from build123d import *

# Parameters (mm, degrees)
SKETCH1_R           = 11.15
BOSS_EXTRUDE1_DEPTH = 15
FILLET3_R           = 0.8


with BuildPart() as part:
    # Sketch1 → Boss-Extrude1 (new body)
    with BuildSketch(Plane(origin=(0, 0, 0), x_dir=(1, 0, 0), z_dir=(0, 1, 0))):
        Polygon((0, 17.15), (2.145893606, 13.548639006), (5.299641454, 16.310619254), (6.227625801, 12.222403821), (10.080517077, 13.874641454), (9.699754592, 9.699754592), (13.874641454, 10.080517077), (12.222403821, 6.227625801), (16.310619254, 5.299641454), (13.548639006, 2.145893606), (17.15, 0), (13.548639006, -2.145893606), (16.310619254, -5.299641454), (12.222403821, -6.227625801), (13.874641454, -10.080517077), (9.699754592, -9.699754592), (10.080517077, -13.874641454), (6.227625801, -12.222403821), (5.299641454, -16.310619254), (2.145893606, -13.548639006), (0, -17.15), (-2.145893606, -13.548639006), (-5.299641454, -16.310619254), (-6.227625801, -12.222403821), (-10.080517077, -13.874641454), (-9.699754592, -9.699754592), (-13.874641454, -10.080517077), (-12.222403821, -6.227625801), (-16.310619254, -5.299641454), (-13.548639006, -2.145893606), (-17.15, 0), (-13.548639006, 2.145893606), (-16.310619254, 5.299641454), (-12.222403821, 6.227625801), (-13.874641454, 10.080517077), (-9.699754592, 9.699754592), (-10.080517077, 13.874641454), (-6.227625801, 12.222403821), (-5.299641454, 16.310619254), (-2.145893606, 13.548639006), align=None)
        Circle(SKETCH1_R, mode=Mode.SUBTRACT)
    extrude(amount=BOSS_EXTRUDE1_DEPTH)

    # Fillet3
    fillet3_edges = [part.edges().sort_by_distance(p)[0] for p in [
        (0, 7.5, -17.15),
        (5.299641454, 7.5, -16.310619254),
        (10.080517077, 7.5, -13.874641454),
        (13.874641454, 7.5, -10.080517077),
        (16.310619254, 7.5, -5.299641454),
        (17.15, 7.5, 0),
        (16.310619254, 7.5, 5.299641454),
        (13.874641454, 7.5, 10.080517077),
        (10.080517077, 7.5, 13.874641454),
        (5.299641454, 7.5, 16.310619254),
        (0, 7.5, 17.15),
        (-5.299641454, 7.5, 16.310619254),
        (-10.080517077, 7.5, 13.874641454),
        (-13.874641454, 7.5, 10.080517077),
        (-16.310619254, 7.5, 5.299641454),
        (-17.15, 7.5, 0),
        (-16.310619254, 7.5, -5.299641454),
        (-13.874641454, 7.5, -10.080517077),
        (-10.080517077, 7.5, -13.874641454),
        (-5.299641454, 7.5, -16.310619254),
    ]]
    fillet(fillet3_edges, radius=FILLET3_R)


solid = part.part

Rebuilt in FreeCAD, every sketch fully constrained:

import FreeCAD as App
import Part
import Sketcher

V = App.Vector


def edges_at(feature, points):
    """Names of the edges that pass closest to the given points."""
    edges = feature.Shape.Edges
    near = lambda p: min(range(len(edges)), key=lambda i: edges[i].distToShape(Part.Vertex(*p))[0])
    return sorted({f"Edge{near(p) + 1}" for p in points})


def add_polygon(sketch, points):
    """Adds a closed chain of lines whose ends are joined by coincident constraints."""
    first, n = sketch.GeometryCount, len(points)
    for a, b in zip(points, points[1:] + points[:1]):
        sketch.addGeometry(Part.LineSegment(App.Vector(*a, 0), App.Vector(*b, 0)), False)
    for i in range(n):
        sketch.addConstraint(Sketcher.Constraint("Coincident", first + i, 2, first + (i + 1) % n, 1))

doc = App.newDocument("Part")
body = doc.addObject("PartDesign::Body", "Body")

sketch1 = doc.addObject("Sketcher::SketchObject", "Sketch")
body.addObject(sketch1)
sketch1.AttachmentSupport = (doc.XZ_Plane, [""])
sketch1.MapMode = "FlatFace"
add_polygon(sketch1, [(2.1, -13.5), (0, -17.1), (-2.1, -13.5), (-5.3, -16.3), (-6.2, -12.2), (-10.1, -13.9), (-9.7, -9.7), (-13.9, -10.1), (-12.2, -6.2), (-16.3, -5.3), (-13.5, -2.1), (-17.1, 0), (-13.5, 2.1), (-16.3, 5.3), (-12.2, 6.2), (-13.9, 10.1), (-9.7, 9.7), (-10.1, 13.9), (-6.2, 12.2), (-5.3, 16.3), (-2.1, 13.5), (0, 17.1), (2.1, 13.5), (5.3, 16.3), (6.2, 12.2), (10.1, 13.9), (9.7, 9.7), (13.9, 10.1), (12.2, 6.2), (16.3, 5.3), (13.5, 2.1), (17.1, 0), (13.5, -2.1), (16.3, -5.3), (12.2, -6.2), (13.9, -10.1), (9.7, -9.7), (10.1, -13.9), (6.2, -12.2), (5.3, -16.3)])
sketch1.addGeometry(Part.Circle(V(0, 0, 0), V(0, 0, 1), 11.2), False)
sketch1.addConstraint([
    Sketcher.Constraint("Coincident", 40, 3, -1, 1),
    Sketcher.Constraint("Symmetric", 0, 2, 20, 2, -1, 1),
    Sketcher.Constraint("Symmetric", 1, 2, 21, 2, -1, 1),
    Sketcher.Constraint("Symmetric", 2, 2, 22, 2, -1, 1),
    Sketcher.Constraint("Symmetric", 3, 2, 23, 2, -1, 1),
    Sketcher.Constraint("Symmetric", 4, 2, 24, 2, -1, 1),
    Sketcher.Constraint("Symmetric", 5, 2, 25, 2, -1, 1),
    Sketcher.Constraint("Symmetric", 6, 2, 26, 2, -1, 1),
    Sketcher.Constraint("Symmetric", 7, 2, 27, 2, -1, 1),
    Sketcher.Constraint("Symmetric", 8, 2, 28, 2, -1, 1),
    Sketcher.Constraint("Symmetric", 9, 2, 29, 2, -1, 1),
    Sketcher.Constraint("Symmetric", 10, 2, 30, 2, -1, 1),
    Sketcher.Constraint("Symmetric", 11, 2, 31, 2, -1, 1),
    Sketcher.Constraint("Symmetric", 12, 2, 32, 2, -1, 1),
    Sketcher.Constraint("Symmetric", 13, 2, 33, 2, -1, 1),
    Sketcher.Constraint("Symmetric", 14, 2, 34, 2, -1, 1),
    Sketcher.Constraint("Symmetric", 15, 2, 35, 2, -1, 1),
    Sketcher.Constraint("Symmetric", 16, 2, 36, 2, -1, 1),
    Sketcher.Constraint("Symmetric", 17, 2, 37, 2, -1, 1),
    Sketcher.Constraint("Symmetric", 18, 2, 38, 2, -1, 1),
    Sketcher.Constraint("Symmetric", 19, 2, 39, 2, -1, 1),
    Sketcher.Constraint("Symmetric", 19, 2, 21, 2, -2),
    Sketcher.Constraint("Symmetric", 18, 2, 22, 2, -2),
    Sketcher.Constraint("Symmetric", 17, 2, 23, 2, -2),
    Sketcher.Constraint("Symmetric", 16, 2, 24, 2, -2),
    Sketcher.Constraint("Symmetric", 15, 2, 25, 2, -2),
    Sketcher.Constraint("Symmetric", 14, 2, 26, 2, -2),
    Sketcher.Constraint("Symmetric", 13, 2, 27, 2, -2),
    Sketcher.Constraint("Symmetric", 12, 2, 28, 2, -2),
    Sketcher.Constraint("Symmetric", 11, 2, 29, 2, -2),
    Sketcher.Constraint("PointOnObject", 0, 2, -2),
    Sketcher.Constraint("PointOnObject", 10, 2, -1),
    Sketcher.Constraint("Perpendicular", 0, 10),
    Sketcher.Constraint("Perpendicular", 2, 12),
    Sketcher.Constraint("Perpendicular", 3, 13),
    Sketcher.Constraint("Perpendicular", 4, 14),
    Sketcher.Constraint("Perpendicular", 5, 15),
    Sketcher.Constraint("Equal", 1, 2),
    Sketcher.Constraint("Equal", 2, 3),
    Sketcher.Constraint("Equal", 3, 4),
    Sketcher.Constraint("Equal", 4, 5),
    Sketcher.Constraint("Equal", 5, 6),
    Sketcher.Constraint("Equal", 6, 7),
    Sketcher.Constraint("Equal", 7, 8),
    Sketcher.Constraint("Equal", 8, 9),
    Sketcher.Constraint("Equal", 9, 10),
    Sketcher.Constraint("Diameter", 40, 22.3),
    Sketcher.Constraint("DistanceY", 0, 2, -1, 1, 17.15),
    Sketcher.Constraint("DistanceX", 6, 2, 2, 2, 8.575),
    Sketcher.Constraint("DistanceY", 1, 2, -1, 1, 13.548639),
    Sketcher.Constraint("DistanceX", 2, 2, -1, 1, 5.299641),
    Sketcher.Constraint("DistanceY", 2, 2, -1, 1, 16.310619),
    Sketcher.Constraint("DistanceX", 4, 2, 3, 2, 3.852891),
])
pad1 = doc.addObject("PartDesign::Pad", "Pad")
body.addObject(pad1)
pad1.Profile = sketch1
pad1.Length = 15
pad1.Reversed = True
doc.recompute()

fillet = doc.addObject("PartDesign::Fillet", "Fillet")
body.addObject(fillet)
fillet.Base = (pad1, edges_at(pad1, [
    (0, 7.5, -17.15),
    (5.3, 7.5, -16.311),
    (10.081, 7.5, -13.875),
    (13.875, 7.5, -10.081),
    (16.311, 7.5, -5.3),
    (17.15, 7.5, 0),
    (16.311, 7.5, 5.3),
    (13.875, 7.5, 10.081),
    (10.081, 7.5, 13.875),
    (5.3, 7.5, 16.311),
    (0, 7.5, 17.15),
    (-5.3, 7.5, 16.311),
    (-10.081, 7.5, 13.875),
    (-13.875, 7.5, 10.081),
    (-16.311, 7.5, 5.3),
    (-17.15, 7.5, 0),
    (-16.311, 7.5, -5.3),
    (-13.875, 7.5, -10.081),
    (-10.081, 7.5, -13.875),
    (-5.3, 7.5, -16.311),
]))
fillet.Radius = 0.8

doc.recompute()
